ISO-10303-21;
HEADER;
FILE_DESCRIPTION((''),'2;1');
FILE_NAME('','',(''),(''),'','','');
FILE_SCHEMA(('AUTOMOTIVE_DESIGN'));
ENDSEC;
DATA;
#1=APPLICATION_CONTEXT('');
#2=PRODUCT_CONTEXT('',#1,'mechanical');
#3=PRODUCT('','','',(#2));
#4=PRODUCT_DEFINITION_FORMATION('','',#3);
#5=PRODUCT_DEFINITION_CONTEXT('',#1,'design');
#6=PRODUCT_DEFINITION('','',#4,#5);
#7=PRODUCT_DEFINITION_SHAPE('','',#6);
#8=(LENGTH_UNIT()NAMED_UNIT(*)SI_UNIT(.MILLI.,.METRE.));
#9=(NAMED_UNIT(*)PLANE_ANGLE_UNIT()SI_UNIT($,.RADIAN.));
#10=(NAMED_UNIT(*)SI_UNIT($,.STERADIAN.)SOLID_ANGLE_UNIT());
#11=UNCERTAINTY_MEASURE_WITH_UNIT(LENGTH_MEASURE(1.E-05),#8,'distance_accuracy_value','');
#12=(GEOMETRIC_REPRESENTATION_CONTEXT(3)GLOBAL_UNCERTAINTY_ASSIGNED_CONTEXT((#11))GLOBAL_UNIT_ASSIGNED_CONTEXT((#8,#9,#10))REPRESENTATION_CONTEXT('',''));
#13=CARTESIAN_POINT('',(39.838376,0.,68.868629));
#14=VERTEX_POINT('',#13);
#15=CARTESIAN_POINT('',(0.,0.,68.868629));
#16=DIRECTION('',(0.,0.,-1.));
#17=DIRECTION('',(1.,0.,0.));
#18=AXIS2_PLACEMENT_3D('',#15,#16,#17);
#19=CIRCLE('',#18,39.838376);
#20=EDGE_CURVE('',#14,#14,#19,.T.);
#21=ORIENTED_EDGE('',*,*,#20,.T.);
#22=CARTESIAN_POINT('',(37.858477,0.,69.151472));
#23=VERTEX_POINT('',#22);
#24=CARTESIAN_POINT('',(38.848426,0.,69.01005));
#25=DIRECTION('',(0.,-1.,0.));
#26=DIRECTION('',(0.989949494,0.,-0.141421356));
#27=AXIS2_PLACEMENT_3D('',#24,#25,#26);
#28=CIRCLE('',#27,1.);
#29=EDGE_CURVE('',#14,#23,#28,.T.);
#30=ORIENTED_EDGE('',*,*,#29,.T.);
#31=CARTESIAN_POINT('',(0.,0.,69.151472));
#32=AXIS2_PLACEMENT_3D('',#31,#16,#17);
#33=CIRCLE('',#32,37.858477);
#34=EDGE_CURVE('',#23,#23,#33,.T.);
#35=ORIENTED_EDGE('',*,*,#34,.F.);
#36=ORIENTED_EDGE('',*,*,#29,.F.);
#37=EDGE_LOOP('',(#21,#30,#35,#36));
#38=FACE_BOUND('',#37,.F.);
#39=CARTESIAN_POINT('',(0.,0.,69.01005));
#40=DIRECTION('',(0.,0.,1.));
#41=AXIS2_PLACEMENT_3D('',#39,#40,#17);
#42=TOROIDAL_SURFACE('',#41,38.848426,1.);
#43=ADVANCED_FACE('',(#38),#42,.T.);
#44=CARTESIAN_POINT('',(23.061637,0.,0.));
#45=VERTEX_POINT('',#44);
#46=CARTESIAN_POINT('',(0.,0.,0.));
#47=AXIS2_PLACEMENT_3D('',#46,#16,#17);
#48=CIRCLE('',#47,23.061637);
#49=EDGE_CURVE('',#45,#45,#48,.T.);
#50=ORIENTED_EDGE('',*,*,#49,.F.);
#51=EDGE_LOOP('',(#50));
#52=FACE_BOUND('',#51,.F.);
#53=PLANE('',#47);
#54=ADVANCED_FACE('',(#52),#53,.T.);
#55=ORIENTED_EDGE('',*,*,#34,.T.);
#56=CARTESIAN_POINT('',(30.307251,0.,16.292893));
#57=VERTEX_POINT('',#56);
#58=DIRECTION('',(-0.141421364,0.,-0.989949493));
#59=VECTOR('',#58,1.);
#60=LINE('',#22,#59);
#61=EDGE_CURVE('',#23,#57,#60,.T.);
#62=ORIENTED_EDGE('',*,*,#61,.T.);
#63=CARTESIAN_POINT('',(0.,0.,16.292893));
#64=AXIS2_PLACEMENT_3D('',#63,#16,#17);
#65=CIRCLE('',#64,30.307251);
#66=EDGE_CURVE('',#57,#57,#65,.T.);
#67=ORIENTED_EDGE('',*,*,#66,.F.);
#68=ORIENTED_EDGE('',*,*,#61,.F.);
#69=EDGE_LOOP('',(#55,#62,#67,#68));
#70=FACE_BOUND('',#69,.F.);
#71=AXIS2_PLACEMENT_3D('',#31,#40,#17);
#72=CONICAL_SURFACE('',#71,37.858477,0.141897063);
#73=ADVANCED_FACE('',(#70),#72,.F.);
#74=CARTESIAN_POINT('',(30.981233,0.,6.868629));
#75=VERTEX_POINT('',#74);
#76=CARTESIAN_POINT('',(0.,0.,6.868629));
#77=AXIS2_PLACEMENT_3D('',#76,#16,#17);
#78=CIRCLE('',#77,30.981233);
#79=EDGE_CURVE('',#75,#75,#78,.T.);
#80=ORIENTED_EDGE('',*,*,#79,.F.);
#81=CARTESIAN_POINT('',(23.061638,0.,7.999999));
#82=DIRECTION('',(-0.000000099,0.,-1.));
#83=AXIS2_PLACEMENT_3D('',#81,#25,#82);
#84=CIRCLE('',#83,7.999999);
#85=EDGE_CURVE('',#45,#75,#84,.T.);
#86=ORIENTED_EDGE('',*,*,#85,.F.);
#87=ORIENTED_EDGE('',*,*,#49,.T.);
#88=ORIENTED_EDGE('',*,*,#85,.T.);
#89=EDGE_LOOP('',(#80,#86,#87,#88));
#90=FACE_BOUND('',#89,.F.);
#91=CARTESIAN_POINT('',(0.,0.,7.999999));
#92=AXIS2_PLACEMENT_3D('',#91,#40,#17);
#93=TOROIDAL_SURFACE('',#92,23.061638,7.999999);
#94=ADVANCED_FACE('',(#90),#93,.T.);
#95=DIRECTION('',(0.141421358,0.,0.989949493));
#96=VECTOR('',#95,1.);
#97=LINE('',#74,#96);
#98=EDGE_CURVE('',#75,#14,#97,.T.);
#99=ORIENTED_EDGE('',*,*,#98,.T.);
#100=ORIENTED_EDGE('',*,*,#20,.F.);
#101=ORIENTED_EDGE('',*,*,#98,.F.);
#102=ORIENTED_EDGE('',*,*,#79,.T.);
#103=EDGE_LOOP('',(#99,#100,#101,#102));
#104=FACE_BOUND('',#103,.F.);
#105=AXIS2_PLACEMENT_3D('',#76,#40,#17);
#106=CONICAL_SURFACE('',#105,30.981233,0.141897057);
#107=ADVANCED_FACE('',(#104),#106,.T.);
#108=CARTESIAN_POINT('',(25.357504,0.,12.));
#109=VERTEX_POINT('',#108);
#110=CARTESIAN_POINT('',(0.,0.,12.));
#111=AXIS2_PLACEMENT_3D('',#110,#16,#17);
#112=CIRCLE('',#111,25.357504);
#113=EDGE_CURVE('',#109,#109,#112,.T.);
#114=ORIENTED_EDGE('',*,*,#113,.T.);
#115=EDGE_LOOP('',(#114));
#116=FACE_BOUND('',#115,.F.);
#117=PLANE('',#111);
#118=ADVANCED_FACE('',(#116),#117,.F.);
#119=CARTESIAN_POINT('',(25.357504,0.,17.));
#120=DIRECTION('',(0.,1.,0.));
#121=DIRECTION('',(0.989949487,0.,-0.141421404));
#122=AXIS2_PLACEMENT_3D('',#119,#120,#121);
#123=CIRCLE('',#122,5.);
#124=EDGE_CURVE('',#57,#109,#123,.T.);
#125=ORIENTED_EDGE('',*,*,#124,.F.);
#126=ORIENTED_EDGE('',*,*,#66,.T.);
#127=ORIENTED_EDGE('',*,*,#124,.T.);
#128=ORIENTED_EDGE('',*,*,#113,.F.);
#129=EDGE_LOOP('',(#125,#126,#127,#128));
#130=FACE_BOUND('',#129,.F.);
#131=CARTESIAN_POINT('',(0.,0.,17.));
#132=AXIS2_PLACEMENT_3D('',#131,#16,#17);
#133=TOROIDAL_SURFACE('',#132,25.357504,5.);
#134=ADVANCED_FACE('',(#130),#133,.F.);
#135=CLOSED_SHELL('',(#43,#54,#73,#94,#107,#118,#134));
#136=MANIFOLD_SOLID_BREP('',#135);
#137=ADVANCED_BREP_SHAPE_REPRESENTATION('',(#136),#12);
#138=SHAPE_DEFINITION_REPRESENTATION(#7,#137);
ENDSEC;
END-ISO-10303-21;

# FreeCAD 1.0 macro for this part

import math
import FreeCAD as App
import Part
import Sketcher

doc = App.newDocument("Part")
params = doc.addObject("Spreadsheet::Sheet", "Params")
for row, (alias, value) in enumerate([
    ("sketch1_radius", "7.999999 mm"),
    ("sketch1_radius2", "1 mm"),
    ("sketch1_radius3", "5 mm"),
    ("sketch1_height", "12 mm"),
    ("revolution_angle", "360 deg"),
], start=1):
    params.set(f"A{row}", alias)
    params.set(f"B{row}", "=" + value)
    params.setAlias(f"B{row}", alias)

body = doc.addObject("PartDesign::Body", "Body")

sketch1 = doc.addObject("Sketcher::SketchObject", "Sketch")
body.addObject(sketch1)
sketch1.AttachmentSupport = (doc.XZ_Plane, [""])
sketch1.MapMode = "FlatFace"
sketch1.addGeometry(Part.LineSegment(App.Vector(0, 12, 0), App.Vector(0, 0, 0)), False)
sketch1.addGeometry(Part.LineSegment(App.Vector(0, 0, 0), App.Vector(23.1, 0, 0)), False)
sketch1.addGeometry(Part.ArcOfCircle(Part.Circle(App.Vector(23.1, 8, 0), App.Vector(0, 0, 1), 8), math.radians(-90), math.radians(-8)), False)
sketch1.addGeometry(Part.LineSegment(App.Vector(31, 6.9, 0), App.Vector(39.8, 68.9, 0)), False)
sketch1.addGeometry(Part.ArcOfCircle(Part.Circle(App.Vector(38.8, 69, 0), App.Vector(0, 0, 1), 1), math.radians(-8), math.radians(172)), False)
sketch1.addGeometry(Part.LineSegment(App.Vector(37.9, 69.2, 0), App.Vector(30.3, 16.3, 0)), False)
sketch1.addGeometry(Part.ArcOfCircle(Part.Circle(App.Vector(25.4, 17, 0), App.Vector(0, 0, 1), 5), math.radians(-90), math.radians(-8)), False)
sketch1.addGeometry(Part.LineSegment(App.Vector(25.4, 12, 0), App.Vector(0, 12, 0)), False)
sketch1.addConstraint(Sketcher.Constraint("Coincident", 0, 2, 1, 1))
sketch1.addConstraint(Sketcher.Constraint("Tangent", 1, 2, 2, 1))
sketch1.addConstraint(Sketcher.Constraint("Tangent", 2, 2, 3, 1))
sketch1.addConstraint(Sketcher.Constraint("Tangent", 3, 2, 4, 1))
sketch1.addConstraint(Sketcher.Constraint("Tangent", 4, 2, 5, 1))
sketch1.addConstraint(Sketcher.Constraint("Tangent", 5, 2, 6, 2))
sketch1.addConstraint(Sketcher.Constraint("Tangent", 6, 1, 7, 1))
sketch1.addConstraint(Sketcher.Constraint("Coincident", 7, 2, 0, 1))
sketch1.addConstraint(Sketcher.Constraint("Vertical", 0))
sketch1.addConstraint(Sketcher.Constraint("Horizontal", 1))
sketch1.addConstraint(Sketcher.Constraint("Horizontal", 7))
sketch1.addConstraint(Sketcher.Constraint("Coincident", 0, 2, -1, 1))
sketch1.addConstraint(Sketcher.Constraint("Parallel", 3, 5))
sketch1.addConstraint(Sketcher.Constraint("Radius", 2, 7.999999))
sketch1.addConstraint(Sketcher.Constraint("Radius", 4, 1.0))
sketch1.addConstraint(Sketcher.Constraint("Radius", 6, 5.0))
sketch1.addConstraint(Sketcher.Constraint("DistanceY", 0, 2, 0, 1, 12.0))
sketch1.addConstraint(Sketcher.Constraint("DistanceY", 2, 2, 3, 2, 62.0))
sketch1.addConstraint(Sketcher.Constraint("Distance", 5, 53.395228))
sketch1.addConstraint(Sketcher.Constraint("DistanceX", 1, 1, 1, 2, 23.061637))
sketch1.setExpression("Constraints[13]", "Params.sketch1_radius")
sketch1.setExpression("Constraints[14]", "Params.sketch1_radius2")
sketch1.setExpression("Constraints[15]", "Params.sketch1_radius3")
sketch1.setExpression("Constraints[16]", "Params.sketch1_height")
revolution = doc.addObject("PartDesign::Revolution", "Revolution")
body.addObject(revolution)
revolution.Profile = sketch1
revolution.ReferenceAxis = (sketch1, ["V_Axis"])
revolution.setExpression("Angle", "Params.revolution_angle")

doc.recompute()
